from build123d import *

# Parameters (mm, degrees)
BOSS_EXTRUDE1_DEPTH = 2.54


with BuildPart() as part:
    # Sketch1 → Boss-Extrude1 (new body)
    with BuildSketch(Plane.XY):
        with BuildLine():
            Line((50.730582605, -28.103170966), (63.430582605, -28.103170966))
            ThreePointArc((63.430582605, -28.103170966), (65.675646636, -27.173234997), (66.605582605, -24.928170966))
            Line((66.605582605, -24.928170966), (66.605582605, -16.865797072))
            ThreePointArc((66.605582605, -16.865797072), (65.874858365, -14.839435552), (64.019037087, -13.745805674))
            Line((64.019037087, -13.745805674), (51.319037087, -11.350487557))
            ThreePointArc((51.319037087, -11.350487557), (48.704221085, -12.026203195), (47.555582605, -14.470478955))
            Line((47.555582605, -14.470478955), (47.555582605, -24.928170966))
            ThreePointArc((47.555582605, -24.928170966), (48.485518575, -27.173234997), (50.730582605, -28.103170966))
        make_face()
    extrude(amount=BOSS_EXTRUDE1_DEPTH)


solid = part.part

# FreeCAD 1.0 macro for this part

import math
import FreeCAD as App
import Part
import Sketcher
from FreeCAD import Vector
Q = App.Units.Quantity

doc = App.newDocument("Part")
params = doc.addObject("Spreadsheet::Sheet", "Params")
for row, (alias, value) in enumerate([
    ("sketch1_width", "0.5 in"),
    ("sketch1_radius", "0.125 in"),
    ("pad1_length", "0.1 in"),
], start=1):
    params.set(f"A{row}", alias)
    params.set(f"B{row}", "=" + value)
    params.setAlias(f"B{row}", alias)

body = doc.addObject("PartDesign::Body", "Body")

# Sketch on XY plane
sketch1 = doc.addObject("Sketcher::SketchObject", "Sketch")
body.addObject(sketch1)
sketch1.AttachmentSupport = (doc.XY_Plane, [""])
sketch1.MapMode = "FlatFace"
sketch1.addGeometry(Part.LineSegment(Vector(50.730583, -28.103171, 0), Vector(63.430583, -28.103171, 0)), False)
sketch1.addGeometry(Part.ArcOfCircle(Part.Circle(Vector(63.430583, -24.928171, 0), Vector(0, 0, 1), 3.175), math.radians(-90), math.radians(0)), False)
sketch1.addGeometry(Part.LineSegment(Vector(66.605583, -24.928171, 0), Vector(66.605583, -16.865797, 0)), False)
sketch1.addGeometry(Part.ArcOfCircle(Part.Circle(Vector(63.430583, -16.865797, 0), Vector(0, 0, 1), 3.175), math.radians(0), math.radians(79.319045)), False)
sketch1.addGeometry(Part.LineSegment(Vector(64.019037, -13.745806, 0), Vector(51.319037, -11.350488, 0)), False)
sketch1.addGeometry(Part.ArcOfCircle(Part.Circle(Vector(50.730583, -14.470479, 0), Vector(0, 0, 1), 3.175), math.radians(79.319045), math.radians(180)), False)
sketch1.addGeometry(Part.LineSegment(Vector(47.555583, -14.470479, 0), Vector(47.555583, -24.928171, 0)), False)
sketch1.addGeometry(Part.ArcOfCircle(Part.Circle(Vector(50.730583, -24.928171, 0), Vector(0, 0, 1), 3.175), math.radians(180), math.radians(270)), False)
sketch1.addConstraint(Sketcher.Constraint("Tangent", 0, 2, 1, 1))
sketch1.addConstraint(Sketcher.Constraint("Tangent", 1, 2, 2, 1))
sketch1.addConstraint(Sketcher.Constraint("Tangent", 2, 2, 3, 1))
sketch1.addConstraint(Sketcher.Constraint("Tangent", 3, 2, 4, 1))
sketch1.addConstraint(Sketcher.Constraint("Tangent", 4, 2, 5, 1))
sketch1.addConstraint(Sketcher.Constraint("Tangent", 5, 2, 6, 1))
sketch1.addConstraint(Sketcher.Constraint("Tangent", 6, 2, 7, 1))
sketch1.addConstraint(Sketcher.Constraint("Tangent", 7, 2, 0, 1))
sketch1.addConstraint(Sketcher.Constraint("Horizontal", 0))
sketch1.addConstraint(Sketcher.Constraint("Vertical", 2))
sketch1.addConstraint(Sketcher.Constraint("Vertical", 6))
sketch1.addConstraint(Sketcher.Constraint("Equal", 1, 3))
sketch1.addConstraint(Sketcher.Constraint("Equal", 3, 5))
sketch1.addConstraint(Sketcher.Constraint("Equal", 5, 7))
sketch1.addConstraint(Sketcher.Constraint("DistanceX", 0, 1, 0, 2, Q("0.5 in")))
sketch1.addConstraint(Sketcher.Constraint("Radius", 1, Q("0.125 in")))
sketch1.addConstraint(Sketcher.Constraint("DistanceY", 2, 1, 2, 2, Q("8.062374 mm")))
sketch1.addConstraint(Sketcher.Constraint("DistanceY", 6, 2, 6, 1, Q("10.457692 mm")))
sketch1.addConstraint(Sketcher.Constraint("DistanceY", 1, 3, -1, 1, Q("24.928171 mm")))
sketch1.addConstraint(Sketcher.Constraint("DistanceX", -1, 1, 1, 3, Q("63.430583 mm")))
sketch1.setExpression("Constraints[14]", "Params.sketch1_width")
sketch1.setExpression("Constraints[15]", "Params.sketch1_radius")
pad1 = doc.addObject("PartDesign::Pad", "Pad")
body.addObject(pad1)
pad1.Profile = sketch1
pad1.setExpression("Length", "Params.pad1_length")

doc.recompute()
